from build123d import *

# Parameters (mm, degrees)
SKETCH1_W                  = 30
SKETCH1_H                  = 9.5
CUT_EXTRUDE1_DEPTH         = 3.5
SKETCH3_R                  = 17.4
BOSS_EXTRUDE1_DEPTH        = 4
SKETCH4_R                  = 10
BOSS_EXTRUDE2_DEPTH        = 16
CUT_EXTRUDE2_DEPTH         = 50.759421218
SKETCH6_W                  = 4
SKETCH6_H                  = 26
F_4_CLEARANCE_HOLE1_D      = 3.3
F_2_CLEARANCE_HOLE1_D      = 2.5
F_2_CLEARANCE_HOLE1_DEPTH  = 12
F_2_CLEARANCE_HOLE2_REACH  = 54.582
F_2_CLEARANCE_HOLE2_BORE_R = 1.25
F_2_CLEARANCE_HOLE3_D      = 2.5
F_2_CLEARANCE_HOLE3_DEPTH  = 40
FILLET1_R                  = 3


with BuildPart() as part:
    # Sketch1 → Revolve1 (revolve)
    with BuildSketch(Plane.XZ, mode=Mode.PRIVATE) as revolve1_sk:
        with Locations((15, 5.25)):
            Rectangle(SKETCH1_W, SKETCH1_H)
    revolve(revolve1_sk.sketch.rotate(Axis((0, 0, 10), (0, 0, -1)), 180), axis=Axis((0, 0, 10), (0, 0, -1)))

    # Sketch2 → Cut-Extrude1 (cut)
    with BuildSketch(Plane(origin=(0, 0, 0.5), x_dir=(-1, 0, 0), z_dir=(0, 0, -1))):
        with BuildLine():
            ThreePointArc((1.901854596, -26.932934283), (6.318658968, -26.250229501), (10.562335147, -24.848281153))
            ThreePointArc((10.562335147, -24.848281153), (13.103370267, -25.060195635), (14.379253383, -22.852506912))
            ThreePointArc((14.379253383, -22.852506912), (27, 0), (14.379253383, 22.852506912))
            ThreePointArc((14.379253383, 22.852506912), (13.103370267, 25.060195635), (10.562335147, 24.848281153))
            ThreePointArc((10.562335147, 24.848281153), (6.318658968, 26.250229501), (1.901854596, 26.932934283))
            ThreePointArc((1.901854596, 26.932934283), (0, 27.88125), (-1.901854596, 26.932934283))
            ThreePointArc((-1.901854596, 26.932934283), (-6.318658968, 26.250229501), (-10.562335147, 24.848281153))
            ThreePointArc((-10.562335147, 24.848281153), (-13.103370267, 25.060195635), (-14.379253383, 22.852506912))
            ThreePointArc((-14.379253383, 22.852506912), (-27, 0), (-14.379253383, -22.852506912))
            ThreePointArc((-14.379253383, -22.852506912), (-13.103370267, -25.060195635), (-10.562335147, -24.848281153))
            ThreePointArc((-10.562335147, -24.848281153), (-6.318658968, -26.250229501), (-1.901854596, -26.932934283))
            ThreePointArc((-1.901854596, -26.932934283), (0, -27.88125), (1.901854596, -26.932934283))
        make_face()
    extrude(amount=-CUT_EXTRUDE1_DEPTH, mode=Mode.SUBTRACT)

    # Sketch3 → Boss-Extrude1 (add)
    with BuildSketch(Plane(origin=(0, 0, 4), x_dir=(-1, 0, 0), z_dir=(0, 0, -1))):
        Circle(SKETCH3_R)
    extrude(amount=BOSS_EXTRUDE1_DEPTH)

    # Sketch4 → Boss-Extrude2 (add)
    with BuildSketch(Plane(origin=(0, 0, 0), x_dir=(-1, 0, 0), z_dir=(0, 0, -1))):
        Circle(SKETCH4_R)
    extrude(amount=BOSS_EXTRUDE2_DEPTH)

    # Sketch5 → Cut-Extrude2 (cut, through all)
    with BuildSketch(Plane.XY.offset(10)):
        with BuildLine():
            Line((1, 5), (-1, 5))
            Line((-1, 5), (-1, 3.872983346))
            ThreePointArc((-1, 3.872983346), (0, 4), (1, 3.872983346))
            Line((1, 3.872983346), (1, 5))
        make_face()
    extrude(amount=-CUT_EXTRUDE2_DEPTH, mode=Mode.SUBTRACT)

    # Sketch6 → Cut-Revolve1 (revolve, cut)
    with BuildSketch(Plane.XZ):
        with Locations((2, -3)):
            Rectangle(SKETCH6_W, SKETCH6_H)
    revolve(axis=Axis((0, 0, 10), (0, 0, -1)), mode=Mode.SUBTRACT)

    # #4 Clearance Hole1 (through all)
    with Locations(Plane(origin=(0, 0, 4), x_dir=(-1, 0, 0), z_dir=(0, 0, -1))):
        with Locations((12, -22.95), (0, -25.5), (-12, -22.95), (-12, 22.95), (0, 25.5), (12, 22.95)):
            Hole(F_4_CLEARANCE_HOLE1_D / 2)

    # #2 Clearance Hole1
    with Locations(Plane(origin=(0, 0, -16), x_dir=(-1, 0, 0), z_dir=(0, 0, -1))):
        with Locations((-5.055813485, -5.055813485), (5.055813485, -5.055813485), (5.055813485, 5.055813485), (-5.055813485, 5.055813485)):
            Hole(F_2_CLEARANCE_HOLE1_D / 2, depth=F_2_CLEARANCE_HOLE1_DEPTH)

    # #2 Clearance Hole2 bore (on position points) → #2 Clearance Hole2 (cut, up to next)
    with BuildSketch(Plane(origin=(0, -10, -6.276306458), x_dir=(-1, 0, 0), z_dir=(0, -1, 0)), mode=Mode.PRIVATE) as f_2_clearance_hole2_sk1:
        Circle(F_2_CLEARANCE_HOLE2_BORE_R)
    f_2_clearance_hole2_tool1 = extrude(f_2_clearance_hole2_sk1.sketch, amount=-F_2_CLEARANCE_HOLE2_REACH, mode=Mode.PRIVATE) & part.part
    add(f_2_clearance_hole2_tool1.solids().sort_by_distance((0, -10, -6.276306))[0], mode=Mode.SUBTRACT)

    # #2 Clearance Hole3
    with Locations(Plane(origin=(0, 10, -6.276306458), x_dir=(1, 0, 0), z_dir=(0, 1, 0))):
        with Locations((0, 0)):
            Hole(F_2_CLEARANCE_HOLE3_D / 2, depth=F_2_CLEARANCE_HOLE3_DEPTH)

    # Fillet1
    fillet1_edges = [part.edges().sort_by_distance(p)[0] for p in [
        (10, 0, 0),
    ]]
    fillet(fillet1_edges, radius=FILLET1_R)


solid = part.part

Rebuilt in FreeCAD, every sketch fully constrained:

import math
import FreeCAD as App
import Part
import Sketcher

V = App.Vector


def edges_at(feature, points):
    """Names of the edges that pass closest to the given points."""
    edges = feature.Shape.Edges
    near = lambda p: min(range(len(edges)), key=lambda i: edges[i].distToShape(Part.Vertex(*p))[0])
    return sorted({f"Edge{near(p) + 1}" for p in points})

doc = App.newDocument("Part")
body = doc.addObject("PartDesign::Body", "Body")

# Sketch on XZ plane
sketch1 = body.newObject("Sketcher::SketchObject", "Sketch")
sketch1.AttachmentSupport = (doc.getObject("XZ_Plane"), [""])
sketch1.MapMode = "FlatFace"
sketch1.addGeometry([
    Part.LineSegment(V(0, 10, 0), V(0, 0, 0)),
    Part.LineSegment(V(0, 0, 0), V(30, 0, 0)),
    Part.LineSegment(V(30, 0, 0), V(30, 10, 0)),
    Part.LineSegment(V(30, 10, 0), V(0, 10, 0)),
], False)
sketch1.addConstraint([
    Sketcher.Constraint("Coincident", 0, 2, 1, 1),
    Sketcher.Constraint("Coincident", 1, 2, 2, 1),
    Sketcher.Constraint("Coincident", 2, 2, 3, 1),
    Sketcher.Constraint("Coincident", 3, 2, 0, 1),
    Sketcher.Constraint("Vertical", 0),
    Sketcher.Constraint("Horizontal", 1),
    Sketcher.Constraint("Vertical", 2),
    Sketcher.Constraint("Horizontal", 3),
    Sketcher.Constraint("PointOnObject", 0, 2, -2),
    Sketcher.Constraint("DistanceX", 1, 1, 1, 2, 30.0),
    Sketcher.Constraint("DistanceY", 0, 2, 0, 1, 9.5),
    Sketcher.Constraint("DistanceY", -1, 1, 2, 2, 10.0),
])
revolution = body.newObject("PartDesign::Revolution", "Revolution")
revolution.Profile = sketch1
revolution.ReferenceAxis = (sketch1, ["V_Axis"])
revolution.Angle = 360

# Sketch on XY plane
sketch2 = body.newObject("Sketcher::SketchObject", "Sketch001")
sketch2.AttachmentSupport = (doc.getObject("XY_Plane"), [""])
sketch2.MapMode = "FlatFace"
sketch2.AttachmentOffset = App.Placement(V(0, 0, 0.5), App.Rotation())
sketch2.addGeometry([
    Part.ArcOfCircle(Part.Circle(V(0, 0, 0), V(0, 0, 1), 27), math.radians(-113.03), math.radians(-94.04)),  # 0
    Part.ArcOfCircle(Part.Circle(V(-12, -22.9, 0), V(0, 0, 1), 2.4), math.radians(178), math.radians(307)),  # 1
    Part.ArcOfCircle(Part.Circle(V(0, 0, 0), V(0, 0, 1), 27), math.radians(122), math.radians(238)),  # 2
    Part.ArcOfCircle(Part.Circle(V(-12, 22.9, 0), V(0, 0, 1), 2.4), math.radians(53), math.radians(182)),  # 3
    Part.ArcOfCircle(Part.Circle(V(0, 0, 0), V(0, 0, 1), 27), math.radians(94.04), math.radians(113.03)),  # 4
    Part.ArcOfCircle(Part.Circle(V(0, 25.5, 0), V(0, 0, 1), 2.4), math.radians(37), math.radians(143)),  # 5
    Part.ArcOfCircle(Part.Circle(V(0, 0, 0), V(0, 0, 1), 27), math.radians(66.97), math.radians(85.96)),  # 6
    Part.ArcOfCircle(Part.Circle(V(12, 22.9, 0), V(0, 0, 1), 2.4), math.radians(-2), math.radians(127)),  # 7
    Part.ArcOfCircle(Part.Circle(V(0, 0, 0), V(0, 0, 1), 27), math.radians(-58), math.radians(58)),  # 8
    Part.ArcOfCircle(Part.Circle(V(12, -22.9, 0), V(0, 0, 1), 2.4), math.radians(-127), math.radians(2)),  # 9
    Part.ArcOfCircle(Part.Circle(V(0, 0, 0), V(0, 0, 1), 27), math.radians(-85.96), math.radians(-66.97)),  # 10
    Part.ArcOfCircle(Part.Circle(V(0, -25.5, 0), V(0, 0, 1), 2.4), math.radians(-143), math.radians(-37)),  # 11
], False)
sketch2.addConstraint([
    Sketcher.Constraint("Coincident", 0, 1, 1, 2),
    Sketcher.Constraint("Coincident", 1, 1, 2, 2),
    Sketcher.Constraint("Coincident", 2, 1, 3, 2),
    Sketcher.Constraint("Coincident", 3, 1, 4, 2),
    Sketcher.Constraint("Coincident", 4, 1, 5, 2),
    Sketcher.Constraint("Coincident", 5, 1, 6, 2),
    Sketcher.Constraint("Coincident", 6, 1, 7, 2),
    Sketcher.Constraint("Coincident", 7, 1, 8, 2),
    Sketcher.Constraint("Coincident", 8, 1, 9, 2),
    Sketcher.Constraint("Coincident", 9, 1, 10, 2),
    Sketcher.Constraint("Coincident", 10, 1, 11, 2),
    Sketcher.Constraint("Coincident", 11, 1, 0, 2),
    Sketcher.Constraint("Coincident", 0, 3, -1, 1),
    Sketcher.Constraint("Coincident", 2, 3, -1, 1),
    Sketcher.Constraint("Coincident", 4, 3, -1, 1),
    Sketcher.Constraint("Coincident", 6, 3, -1, 1),
    Sketcher.Constraint("Coincident", 8, 3, -1, 1),
    Sketcher.Constraint("Coincident", 10, 3, -1, 1),
    Sketcher.Constraint("Equal", 0, 2),
    Sketcher.Constraint("Equal", 1, 3),
    Sketcher.Constraint("Equal", 2, 4),
    Sketcher.Constraint("Equal", 3, 5),
    Sketcher.Constraint("Equal", 4, 6),
    Sketcher.Constraint("Equal", 5, 7),
    Sketcher.Constraint("Equal", 6, 8),
    Sketcher.Constraint("Equal", 7, 9),
    Sketcher.Constraint("Equal", 8, 10),
    Sketcher.Constraint("Equal", 9, 11),
    Sketcher.Constraint("Symmetric", 1, 3, 7, 3, -1, 1),
    Sketcher.Constraint("Symmetric", 3, 3, 9, 3, -1, 1),
    Sketcher.Constraint("Symmetric", 5, 3, 11, 3, -1, 1),
    Sketcher.Constraint("Symmetric", 3, 3, 7, 3, -2),
    Sketcher.Constraint("PointOnObject", 5, 3, -2),
    Sketcher.Constraint("Radius", 0, 27.0),
    Sketcher.Constraint("DistanceX", 1, 3, -1, 1, 12.0),
    Sketcher.Constraint("DistanceY", -1, 1, 5, 3, 25.5),
    Sketcher.Constraint("DistanceY", 1, 3, 3, 3, 45.9),
    Sketcher.Constraint("Radius", 1, 2.38125),
])
pocket1 = body.newObject("PartDesign::Pocket", "Pocket")
pocket1.Profile = sketch2
pocket1.Length = 3.5
pocket1.Reversed = True

# Sketch on XY plane
sketch3 = body.newObject("Sketcher::SketchObject", "Sketch002")
sketch3.AttachmentSupport = (doc.getObject("XY_Plane"), [""])
sketch3.MapMode = "FlatFace"
sketch3.AttachmentOffset = App.Placement(V(0, 0, 4), App.Rotation())
sketch3.addGeometry(Part.Circle(V(0, 0, 0), V(0, 0, 1), 17), False)
sketch3.addConstraint([
    Sketcher.Constraint("Coincident", 0, 3, -1, 1),
    Sketcher.Constraint("Diameter", 0, 34.8),
])
pad1 = body.newObject("PartDesign::Pad", "Pad")
pad1.Profile = sketch3
pad1.Length = 4
pad1.Reversed = True

# Sketch on XY plane
sketch4 = body.newObject("Sketcher::SketchObject", "Sketch003")
sketch4.AttachmentSupport = (doc.getObject("XY_Plane"), [""])
sketch4.MapMode = "FlatFace"
sketch4.addGeometry(Part.Circle(V(0, 0, 0), V(0, 0, 1), 10), False)
sketch4.addConstraint([
    Sketcher.Constraint("Coincident", 0, 3, -1, 1),
    Sketcher.Constraint("Diameter", 0, 20.0),
])
pad2 = body.newObject("PartDesign::Pad", "Pad001")
pad2.Profile = sketch4
pad2.Length = 16
pad2.Reversed = True

# Sketch on XY plane
sketch5 = body.newObject("Sketcher::SketchObject", "Sketch004")
sketch5.AttachmentSupport = (doc.getObject("XY_Plane"), [""])
sketch5.MapMode = "FlatFace"
sketch5.AttachmentOffset = App.Placement(V(0, 0, 10), App.Rotation())
sketch5.addGeometry([
    Part.LineSegment(V(1, 5, 0), V(-1, 5, 0)),
    Part.LineSegment(V(-1, 5, 0), V(-1, 3.9, 0)),
    Part.ArcOfCircle(Part.Circle(V(0, 0, 0), V(0, 0, 1), 4), math.radians(76), math.radians(104)),
    Part.LineSegment(V(1, 3.9, 0), V(1, 5, 0)),
], False)
sketch5.addConstraint([
    Sketcher.Constraint("Coincident", 0, 2, 1, 1),
    Sketcher.Constraint("Coincident", 1, 2, 2, 2),
    Sketcher.Constraint("Coincident", 2, 1, 3, 1),
    Sketcher.Constraint("Coincident", 3, 2, 0, 1),
    Sketcher.Constraint("Horizontal", 0),
    Sketcher.Constraint("Vertical", 1),
    Sketcher.Constraint("Vertical", 3),
    Sketcher.Constraint("Coincident", 2, 3, -1, 1),
    Sketcher.Constraint("Horizontal", 1, 2, 2, 1),
    Sketcher.Constraint("Radius", 2, 4.0),
    Sketcher.Constraint("DistanceX", 0, 2, 0, 1, 2.0),
    Sketcher.Constraint("DistanceY", -1, 1, 0, 2, 5.0),
])
pocket2 = body.newObject("PartDesign::Pocket", "Pocket001")
pocket2.Profile = sketch5
pocket2.Type = "ThroughAll"

# Sketch on XZ plane
sketch6 = body.newObject("Sketcher::SketchObject", "Sketch005")
sketch6.AttachmentSupport = (doc.getObject("XZ_Plane"), [""])
sketch6.MapMode = "FlatFace"
sketch6.addGeometry([
    Part.LineSegment(V(0, 10, 0), V(0, -16, 0)),
    Part.LineSegment(V(0, -16, 0), V(4, -16, 0)),
    Part.LineSegment(V(4, -16, 0), V(4, 10, 0)),
    Part.LineSegment(V(4, 10, 0), V(0, 10, 0)),
], False)
sketch6.addConstraint([
    Sketcher.Constraint("Coincident", 0, 2, 1, 1),
    Sketcher.Constraint("Coincident", 1, 2, 2, 1),
    Sketcher.Constraint("Coincident", 2, 2, 3, 1),
    Sketcher.Constraint("Coincident", 3, 2, 0, 1),
    Sketcher.Constraint("Vertical", 0),
    Sketcher.Constraint("Horizontal", 1),
    Sketcher.Constraint("Vertical", 2),
    Sketcher.Constraint("Horizontal", 3),
    Sketcher.Constraint("PointOnObject", 0, 2, -2),
    Sketcher.Constraint("DistanceX", 1, 1, 1, 2, 4.0),
    Sketcher.Constraint("DistanceY", 0, 2, 0, 1, 26.0),
    Sketcher.Constraint("DistanceY", 0, 2, -1, 1, 16.0),
])
groove = body.newObject("PartDesign::Groove", "Groove")
groove.Profile = sketch6
groove.ReferenceAxis = (sketch6, ["V_Axis"])
groove.Angle = 360

# Sketch on XY plane
sketch7 = body.newObject("Sketcher::SketchObject", "Sketch006")
sketch7.AttachmentSupport = (doc.getObject("XY_Plane"), [""])
sketch7.MapMode = "FlatFace"
sketch7.AttachmentOffset = App.Placement(V(0, 0, 4), App.Rotation())
sketch7.addGeometry([
    Part.Circle(V(-12, -22.9, 0), V(0, 0, 1), 1.6),  # 0
    Part.Circle(V(0, -25.5, 0), V(0, 0, 1), 1.6),  # 1
    Part.Circle(V(12, -22.9, 0), V(0, 0, 1), 1.6),  # 2
    Part.Circle(V(12, 22.9, 0), V(0, 0, 1), 1.6),  # 3
    Part.Circle(V(0, 25.5, 0), V(0, 0, 1), 1.6),  # 4
    Part.Circle(V(-12, 22.9, 0), V(0, 0, 1), 1.6),  # 5
], False)
sketch7.addConstraint([
    Sketcher.Constraint("Equal", 0, 1),
    Sketcher.Constraint("Equal", 1, 2),
    Sketcher.Constraint("Equal", 2, 3),
    Sketcher.Constraint("Equal", 3, 4),
    Sketcher.Constraint("Equal", 4, 5),
    Sketcher.Constraint("Symmetric", 0, 3, 3, 3, -1, 1),
    Sketcher.Constraint("Symmetric", 1, 3, 4, 3, -1, 1),
    Sketcher.Constraint("Symmetric", 2, 3, 5, 3, -1, 1),
    Sketcher.Constraint("Symmetric", 0, 3, 2, 3, -2),
    Sketcher.Constraint("PointOnObject", 1, 3, -2),
    Sketcher.Constraint("Diameter", 0, 3.3),
    Sketcher.Constraint("DistanceX", 0, 3, -1, 1, 12.0),
    Sketcher.Constraint("DistanceY", 1, 3, 4, 3, 51.0),
    Sketcher.Constraint("DistanceY", 2, 3, 3, 3, 45.9),
])
doc.recompute()
hole = body.newObject("PartDesign::Hole", "Hole")
hole.Profile = sketch7
hole.ThreadType = "None"
hole.Diameter = 3.3
hole.DepthType = "ThroughAll"
hole.Reversed = True

# Sketch on XY plane
sketch8 = body.newObject("Sketcher::SketchObject", "Sketch007")
sketch8.AttachmentSupport = (doc.getObject("XY_Plane"), [""])
sketch8.MapMode = "FlatFace"
sketch8.AttachmentOffset = App.Placement(V(0, 0, -16), App.Rotation())
sketch8.addGeometry([
    Part.Circle(V(5.1, -5.1, 0), V(0, 0, 1), 1.2),
    Part.Circle(V(-5.1, -5.1, 0), V(0, 0, 1), 1.2),
    Part.Circle(V(-5.1, 5.1, 0), V(0, 0, 1), 1.2),
    Part.Circle(V(5.1, 5.1, 0), V(0, 0, 1), 1.2),
], False)
sketch8.addConstraint([
    Sketcher.Constraint("Equal", 0, 1),
    Sketcher.Constraint("Equal", 1, 2),
    Sketcher.Constraint("Equal", 2, 3),
    Sketcher.Constraint("Symmetric", 0, 3, 2, 3, -1, 1),
    Sketcher.Constraint("Symmetric", 1, 3, 3, 3, -1, 1),
    Sketcher.Constraint("Symmetric", 0, 3, 1, 3, -2),
    Sketcher.Constraint("Diameter", 0, 2.5),
    Sketcher.Constraint("DistanceX", -1, 1, 0, 3, 5.055813),
    Sketcher.Constraint("DistanceY", 0, 3, -1, 1, 5.055813),
])
doc.recompute()
hole2 = body.newObject("PartDesign::Hole", "Hole001")
hole2.Profile = sketch8
hole2.ThreadType = "None"
hole2.Diameter = 2.5
hole2.DepthType = "Dimension"
hole2.Depth = 12
hole2.DrillPoint = "Flat"
hole2.Reversed = True

# Sketch on XZ plane
sketch9 = body.newObject("Sketcher::SketchObject", "Sketch008")
sketch9.AttachmentSupport = (doc.getObject("XZ_Plane"), [""])
sketch9.MapMode = "FlatFace"
sketch9.AttachmentOffset = App.Placement(V(0, 0, 10), App.Rotation())
sketch9.addGeometry(Part.Circle(V(0, -6.3, 0), V(0, 0, 1), 1.2), False)
sketch9.addConstraint([
    Sketcher.Constraint("PointOnObject", 0, 3, -2),
    Sketcher.Constraint("Diameter", 0, 2.5),
    Sketcher.Constraint("DistanceY", 0, 3, -1, 1, 6.276306),
])
pocket3 = body.newObject("PartDesign::Pocket", "Pocket002")
pocket3.Profile = sketch9
pocket3.Type = "UpToFirst"

# Sketch on XZ plane
sketch10 = body.newObject("Sketcher::SketchObject", "Sketch009")
sketch10.AttachmentSupport = (doc.getObject("XZ_Plane"), [""])
sketch10.MapMode = "FlatFace"
sketch10.AttachmentOffset = App.Placement(V(0, 0, -10), App.Rotation())
sketch10.addGeometry(Part.Circle(V(0, -6.3, 0), V(0, 0, 1), 1.2), False)
sketch10.addConstraint([
    Sketcher.Constraint("PointOnObject", 0, 3, -2),
    Sketcher.Constraint("Diameter", 0, 2.5),
    Sketcher.Constraint("DistanceY", 0, 3, -1, 1, 6.276306),
])
doc.recompute()
hole3 = body.newObject("PartDesign::Hole", "Hole002")
hole3.Profile = sketch10
hole3.ThreadType = "None"
hole3.Diameter = 2.5
hole3.DepthType = "Dimension"
hole3.Depth = 40
hole3.DrillPoint = "Flat"
hole3.Reversed = True
doc.recompute()

fillet = body.newObject("PartDesign::Fillet", "Fillet")
fillet.Base = (hole3, edges_at(hole3, [(10, 0, 0)]))
fillet.Radius = 3

doc.recompute()
